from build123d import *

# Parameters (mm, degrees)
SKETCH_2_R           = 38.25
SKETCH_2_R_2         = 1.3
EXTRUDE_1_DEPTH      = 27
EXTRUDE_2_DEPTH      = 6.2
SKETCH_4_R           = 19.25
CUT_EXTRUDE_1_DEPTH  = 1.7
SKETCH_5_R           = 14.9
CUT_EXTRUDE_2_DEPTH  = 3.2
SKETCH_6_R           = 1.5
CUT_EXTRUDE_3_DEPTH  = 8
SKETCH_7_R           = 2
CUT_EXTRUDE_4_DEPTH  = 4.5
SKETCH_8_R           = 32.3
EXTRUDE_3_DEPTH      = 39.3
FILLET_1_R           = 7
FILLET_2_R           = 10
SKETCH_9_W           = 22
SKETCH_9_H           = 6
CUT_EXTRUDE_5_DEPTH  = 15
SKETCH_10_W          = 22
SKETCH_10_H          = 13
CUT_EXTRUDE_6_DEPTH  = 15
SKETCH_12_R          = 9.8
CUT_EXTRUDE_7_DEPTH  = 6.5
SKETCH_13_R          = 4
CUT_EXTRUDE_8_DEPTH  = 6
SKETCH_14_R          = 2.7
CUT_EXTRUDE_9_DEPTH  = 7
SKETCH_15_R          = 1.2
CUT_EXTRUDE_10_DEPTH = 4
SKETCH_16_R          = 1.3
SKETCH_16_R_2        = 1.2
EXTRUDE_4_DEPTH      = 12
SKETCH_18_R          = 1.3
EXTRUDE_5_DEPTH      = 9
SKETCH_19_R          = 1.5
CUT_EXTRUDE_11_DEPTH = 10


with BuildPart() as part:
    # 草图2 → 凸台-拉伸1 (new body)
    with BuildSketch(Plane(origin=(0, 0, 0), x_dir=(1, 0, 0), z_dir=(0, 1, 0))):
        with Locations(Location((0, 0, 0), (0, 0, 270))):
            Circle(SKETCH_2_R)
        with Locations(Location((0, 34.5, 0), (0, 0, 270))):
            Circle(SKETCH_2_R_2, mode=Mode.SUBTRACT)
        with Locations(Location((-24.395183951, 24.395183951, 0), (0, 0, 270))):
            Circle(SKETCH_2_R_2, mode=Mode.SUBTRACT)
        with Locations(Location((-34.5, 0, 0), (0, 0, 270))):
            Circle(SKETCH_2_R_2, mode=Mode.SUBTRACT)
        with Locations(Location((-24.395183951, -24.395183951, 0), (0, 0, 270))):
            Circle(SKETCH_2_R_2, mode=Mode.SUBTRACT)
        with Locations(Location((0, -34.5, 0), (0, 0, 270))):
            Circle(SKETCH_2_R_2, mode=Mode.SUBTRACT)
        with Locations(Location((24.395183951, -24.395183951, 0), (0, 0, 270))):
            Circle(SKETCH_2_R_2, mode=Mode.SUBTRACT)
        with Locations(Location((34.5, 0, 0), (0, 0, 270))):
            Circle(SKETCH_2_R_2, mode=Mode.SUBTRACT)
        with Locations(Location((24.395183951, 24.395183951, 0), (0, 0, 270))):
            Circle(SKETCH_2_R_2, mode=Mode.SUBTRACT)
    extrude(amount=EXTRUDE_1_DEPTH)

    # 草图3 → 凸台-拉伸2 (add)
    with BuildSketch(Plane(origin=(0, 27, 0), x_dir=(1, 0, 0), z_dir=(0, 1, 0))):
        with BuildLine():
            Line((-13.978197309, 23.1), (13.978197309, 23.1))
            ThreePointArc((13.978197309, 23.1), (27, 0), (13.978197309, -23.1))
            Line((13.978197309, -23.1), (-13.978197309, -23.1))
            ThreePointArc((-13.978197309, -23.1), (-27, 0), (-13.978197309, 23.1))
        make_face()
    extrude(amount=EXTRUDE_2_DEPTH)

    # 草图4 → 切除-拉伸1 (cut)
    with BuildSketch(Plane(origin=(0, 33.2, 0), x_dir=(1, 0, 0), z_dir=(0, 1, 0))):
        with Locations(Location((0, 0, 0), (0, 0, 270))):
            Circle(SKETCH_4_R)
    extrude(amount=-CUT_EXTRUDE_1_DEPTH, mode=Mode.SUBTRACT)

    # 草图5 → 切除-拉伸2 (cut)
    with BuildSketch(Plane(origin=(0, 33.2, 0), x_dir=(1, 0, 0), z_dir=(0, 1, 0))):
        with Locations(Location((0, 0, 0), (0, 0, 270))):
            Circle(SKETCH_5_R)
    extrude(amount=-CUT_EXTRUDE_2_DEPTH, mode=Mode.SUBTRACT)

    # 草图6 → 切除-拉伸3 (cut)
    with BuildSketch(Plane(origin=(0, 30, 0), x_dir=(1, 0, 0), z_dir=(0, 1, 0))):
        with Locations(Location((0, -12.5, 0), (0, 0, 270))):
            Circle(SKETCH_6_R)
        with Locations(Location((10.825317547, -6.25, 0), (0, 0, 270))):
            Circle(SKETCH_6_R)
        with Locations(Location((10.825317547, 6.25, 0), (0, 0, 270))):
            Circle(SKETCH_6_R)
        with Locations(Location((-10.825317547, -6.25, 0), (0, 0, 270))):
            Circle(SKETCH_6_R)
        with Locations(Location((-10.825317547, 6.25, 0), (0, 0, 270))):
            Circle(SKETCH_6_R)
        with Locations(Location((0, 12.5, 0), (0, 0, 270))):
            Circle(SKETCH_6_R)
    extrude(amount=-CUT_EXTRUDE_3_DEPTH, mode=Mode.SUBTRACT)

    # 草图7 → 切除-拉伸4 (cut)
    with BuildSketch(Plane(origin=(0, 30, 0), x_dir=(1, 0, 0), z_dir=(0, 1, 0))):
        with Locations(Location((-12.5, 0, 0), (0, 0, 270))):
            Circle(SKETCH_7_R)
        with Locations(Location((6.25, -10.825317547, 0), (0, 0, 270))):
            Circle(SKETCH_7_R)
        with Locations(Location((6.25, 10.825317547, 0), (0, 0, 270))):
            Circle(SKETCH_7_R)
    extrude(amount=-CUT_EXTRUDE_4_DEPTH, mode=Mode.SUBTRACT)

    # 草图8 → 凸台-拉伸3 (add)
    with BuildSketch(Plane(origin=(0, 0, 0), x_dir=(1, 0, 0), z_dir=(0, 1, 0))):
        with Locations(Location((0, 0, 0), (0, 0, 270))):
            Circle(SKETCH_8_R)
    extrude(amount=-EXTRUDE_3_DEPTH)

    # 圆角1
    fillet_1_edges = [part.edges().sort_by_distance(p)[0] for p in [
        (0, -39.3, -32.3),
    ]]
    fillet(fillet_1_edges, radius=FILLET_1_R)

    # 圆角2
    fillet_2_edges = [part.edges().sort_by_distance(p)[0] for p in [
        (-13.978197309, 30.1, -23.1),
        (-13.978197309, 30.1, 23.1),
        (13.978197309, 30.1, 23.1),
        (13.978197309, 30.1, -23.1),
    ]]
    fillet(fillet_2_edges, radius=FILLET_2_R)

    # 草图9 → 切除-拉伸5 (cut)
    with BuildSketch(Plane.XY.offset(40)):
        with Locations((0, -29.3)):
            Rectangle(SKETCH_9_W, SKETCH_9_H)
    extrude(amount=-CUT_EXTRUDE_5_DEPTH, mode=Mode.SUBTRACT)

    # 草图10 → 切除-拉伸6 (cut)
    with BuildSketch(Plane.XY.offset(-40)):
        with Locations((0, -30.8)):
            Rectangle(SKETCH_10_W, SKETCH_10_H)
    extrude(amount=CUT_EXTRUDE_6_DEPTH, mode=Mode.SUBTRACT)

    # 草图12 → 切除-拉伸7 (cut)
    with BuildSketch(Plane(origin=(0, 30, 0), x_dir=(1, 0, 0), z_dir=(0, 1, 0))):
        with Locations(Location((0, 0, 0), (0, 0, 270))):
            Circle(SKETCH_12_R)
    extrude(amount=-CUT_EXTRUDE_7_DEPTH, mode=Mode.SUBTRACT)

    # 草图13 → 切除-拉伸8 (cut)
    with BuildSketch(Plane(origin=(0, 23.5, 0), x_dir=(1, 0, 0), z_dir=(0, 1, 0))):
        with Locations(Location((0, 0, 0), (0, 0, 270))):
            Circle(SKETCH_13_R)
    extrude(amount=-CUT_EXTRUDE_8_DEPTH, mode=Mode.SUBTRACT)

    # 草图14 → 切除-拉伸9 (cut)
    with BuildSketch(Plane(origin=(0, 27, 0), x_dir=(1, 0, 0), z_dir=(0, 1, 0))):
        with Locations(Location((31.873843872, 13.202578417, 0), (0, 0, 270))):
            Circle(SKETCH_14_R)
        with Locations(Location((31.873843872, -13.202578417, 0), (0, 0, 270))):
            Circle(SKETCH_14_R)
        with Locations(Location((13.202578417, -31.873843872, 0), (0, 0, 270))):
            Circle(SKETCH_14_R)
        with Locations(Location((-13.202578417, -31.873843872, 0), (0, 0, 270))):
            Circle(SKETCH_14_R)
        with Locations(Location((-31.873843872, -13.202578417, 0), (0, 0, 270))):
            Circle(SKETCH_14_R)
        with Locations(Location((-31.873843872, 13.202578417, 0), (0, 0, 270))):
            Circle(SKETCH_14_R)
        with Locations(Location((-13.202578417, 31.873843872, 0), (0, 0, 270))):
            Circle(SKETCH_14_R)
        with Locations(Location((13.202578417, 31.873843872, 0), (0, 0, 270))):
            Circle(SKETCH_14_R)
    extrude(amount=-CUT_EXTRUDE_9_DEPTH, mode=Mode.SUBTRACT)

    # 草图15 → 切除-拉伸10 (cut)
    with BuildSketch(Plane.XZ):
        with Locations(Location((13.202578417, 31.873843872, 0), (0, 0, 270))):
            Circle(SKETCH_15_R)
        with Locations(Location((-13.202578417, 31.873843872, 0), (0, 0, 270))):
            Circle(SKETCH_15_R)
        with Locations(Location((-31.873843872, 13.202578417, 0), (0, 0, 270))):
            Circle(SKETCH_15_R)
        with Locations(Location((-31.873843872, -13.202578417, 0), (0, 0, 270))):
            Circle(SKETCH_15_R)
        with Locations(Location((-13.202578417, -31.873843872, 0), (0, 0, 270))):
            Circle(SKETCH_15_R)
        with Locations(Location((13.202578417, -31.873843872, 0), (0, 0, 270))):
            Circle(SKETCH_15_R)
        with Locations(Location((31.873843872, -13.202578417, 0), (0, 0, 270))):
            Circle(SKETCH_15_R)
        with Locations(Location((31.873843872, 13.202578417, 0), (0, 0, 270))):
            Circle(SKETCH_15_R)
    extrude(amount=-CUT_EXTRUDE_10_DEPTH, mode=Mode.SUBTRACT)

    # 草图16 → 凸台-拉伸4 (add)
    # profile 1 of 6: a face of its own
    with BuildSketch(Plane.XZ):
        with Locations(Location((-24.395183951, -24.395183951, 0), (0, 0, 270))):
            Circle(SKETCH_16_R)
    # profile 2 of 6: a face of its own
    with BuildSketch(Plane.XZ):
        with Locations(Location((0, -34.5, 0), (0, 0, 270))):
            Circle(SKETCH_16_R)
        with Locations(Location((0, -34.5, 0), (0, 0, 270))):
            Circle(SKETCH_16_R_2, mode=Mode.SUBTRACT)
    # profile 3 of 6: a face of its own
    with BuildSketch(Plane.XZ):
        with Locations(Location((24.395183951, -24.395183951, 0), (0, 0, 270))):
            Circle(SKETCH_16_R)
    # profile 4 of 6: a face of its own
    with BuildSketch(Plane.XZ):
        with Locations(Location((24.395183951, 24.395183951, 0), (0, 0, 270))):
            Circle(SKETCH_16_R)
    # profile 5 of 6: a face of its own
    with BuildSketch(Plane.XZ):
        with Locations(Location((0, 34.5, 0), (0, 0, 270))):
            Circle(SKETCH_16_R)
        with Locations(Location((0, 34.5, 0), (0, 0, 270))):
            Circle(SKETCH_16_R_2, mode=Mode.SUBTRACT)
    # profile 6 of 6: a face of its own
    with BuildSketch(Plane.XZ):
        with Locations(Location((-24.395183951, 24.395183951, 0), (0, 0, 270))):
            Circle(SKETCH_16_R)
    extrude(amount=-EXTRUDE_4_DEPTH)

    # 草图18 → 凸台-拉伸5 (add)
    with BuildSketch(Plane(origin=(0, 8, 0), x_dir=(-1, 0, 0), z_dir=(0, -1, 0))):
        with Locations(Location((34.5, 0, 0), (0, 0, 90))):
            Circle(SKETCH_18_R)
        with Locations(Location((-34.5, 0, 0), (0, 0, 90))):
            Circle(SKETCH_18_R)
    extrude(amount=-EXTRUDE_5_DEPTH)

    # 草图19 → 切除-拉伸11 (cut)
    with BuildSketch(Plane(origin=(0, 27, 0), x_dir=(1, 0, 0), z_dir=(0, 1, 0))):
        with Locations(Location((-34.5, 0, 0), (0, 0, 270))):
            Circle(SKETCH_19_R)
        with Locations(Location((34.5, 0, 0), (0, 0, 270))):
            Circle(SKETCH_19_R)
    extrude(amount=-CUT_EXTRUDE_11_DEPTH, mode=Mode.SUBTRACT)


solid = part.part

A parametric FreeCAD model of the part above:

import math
import FreeCAD as App
import Part
import Sketcher

V = App.Vector
Q = App.Units.Quantity


def edges_at(feature, points):
    """Names of the edges that pass closest to the given points."""
    edges = feature.Shape.Edges
    near = lambda p: min(range(len(edges)), key=lambda i: edges[i].distToShape(Part.Vertex(*p))[0])
    return sorted({f"Edge{near(p) + 1}" for p in points})


def add_polygon(sketch, points):
    """Adds a closed chain of lines whose ends are joined by coincident constraints."""
    first, n = sketch.GeometryCount, len(points)
    for a, b in zip(points, points[1:] + points[:1]):
        sketch.addGeometry(Part.LineSegment(App.Vector(*a, 0), App.Vector(*b, 0)), False)
    for i in range(n):
        sketch.addConstraint(Sketcher.Constraint("Coincident", first + i, 2, first + (i + 1) % n, 1))

doc = App.newDocument("Part")
params = doc.addObject("Spreadsheet::Sheet", "Params")
for row, (alias, value) in enumerate([
    ("sketch1_diameter", "76.5 mm"),
    ("sketch1_diameter2", "2.6 mm"),
    ("pad1_length", "27 mm"),
    ("sketch2_radius", "27 mm"),
    ("pad2_length", "6.2 mm"),
    ("sketch3_diameter", "38.5 mm"),
    ("pocket1_length", "1.7 mm"),
    ("sketch4_diameter", "29.8 mm"),
    ("pocket2_length", "3.2 mm"),
    ("sketch5_diameter", "3 mm"),
    ("pocket3_length", "8 mm"),
    ("sketch6_diameter", "4 mm"),
    ("pocket4_length", "4.5 mm"),
    ("sketch7_diameter", "64.6 mm"),
    ("pad3_length", "39.3 mm"),
    ("fillet_radius", "7 mm"),
    ("fillet2_radius", "10 mm"),
    ("sketch8_width", "22 mm"),
    ("sketch8_height", "6 mm"),
    ("pocket5_length", "15 mm"),
    ("sketch9_width", "22 mm"),
    ("sketch9_height", "13 mm"),
    ("pocket6_length", "15 mm"),
    ("sketch10_diameter", "19.6 mm"),
    ("pocket7_length", "6.5 mm"),
    ("sketch11_diameter", "8 mm"),
    ("pocket8_length", "6 mm"),
    ("sketch12_diameter", "5.4 mm"),
    ("pocket9_length", "7 mm"),
    ("sketch13_diameter", "2.4 mm"),
    ("pocket10_length", "4 mm"),
    ("sketch14_diameter", "2.6 mm"),
    ("sketch14_diameter2", "2.4 mm"),
    ("pad4_length", "12 mm"),
    ("sketch15_diameter", "2.6 mm"),
    ("pad5_length", "9 mm"),
    ("sketch16_diameter", "3 mm"),
    ("pocket11_length", "10 mm"),
], start=1):
    params.set(f"A{row}", alias)
    params.set(f"B{row}", "=" + value)
    params.setAlias(f"B{row}", alias)

body = doc.addObject("PartDesign::Body", "Body")

# Sketch on XZ plane
sketch1 = doc.addObject("Sketcher::SketchObject", "Sketch")
body.addObject(sketch1)
sketch1.AttachmentSupport = (doc.XZ_Plane, [""])
sketch1.MapMode = "FlatFace"
sketch1.addGeometry([
    Part.Circle(V(0, 0, 0), V(0, 0, 1), 38.2),  # 0
    Part.Circle(V(-24.4, -24.4, 0), V(0, 0, 1), 1.3),  # 1
    Part.Circle(V(0, -34.5, 0), V(0, 0, 1), 1.3),  # 2
    Part.Circle(V(-34.5, 0, 0), V(0, 0, 1), 1.3),  # 3
    Part.Circle(V(-24.4, 24.4, 0), V(0, 0, 1), 1.3),  # 4
    Part.Circle(V(24.4, -24.4, 0), V(0, 0, 1), 1.3),  # 5
    Part.Circle(V(34.5, 0, 0), V(0, 0, 1), 1.3),  # 6
    Part.Circle(V(0, 34.5, 0), V(0, 0, 1), 1.3),  # 7
    Part.Circle(V(24.4, 24.4, 0), V(0, 0, 1), 1.3),  # 8
], False)
sketch1.addConstraint([
    Sketcher.Constraint("Coincident", 0, 3, -1, 1),
    Sketcher.Constraint("Equal", 1, 2),
    Sketcher.Constraint("Equal", 2, 3),
    Sketcher.Constraint("Equal", 3, 4),
    Sketcher.Constraint("Equal", 4, 5),
    Sketcher.Constraint("Equal", 5, 6),
    Sketcher.Constraint("Equal", 6, 7),
    Sketcher.Constraint("Equal", 7, 8),
    Sketcher.Constraint("Symmetric", 4, 3, 5, 3, -1, 1),
    Sketcher.Constraint("Symmetric", 3, 3, 6, 3, -1, 1),
    Sketcher.Constraint("Symmetric", 2, 3, 7, 3, -1, 1),
    Sketcher.Constraint("Symmetric", 1, 3, 8, 3, -1, 1),
    Sketcher.Constraint("Symmetric", 1, 3, 5, 3, -2),
    Sketcher.Constraint("PointOnObject", 2, 3, -2),
    Sketcher.Constraint("PointOnObject", 3, 3, -1),
    Sketcher.Constraint("Diameter", 0, Q("76.5 mm")),
    Sketcher.Constraint("Diameter", 1, Q("2.6 mm")),
    Sketcher.Constraint("DistanceY", 2, 3, -1, 1, Q("34.5 mm")),
    Sketcher.Constraint("DistanceX", 3, 3, -1, 1, Q("34.5 mm")),
    Sketcher.Constraint("DistanceX", 1, 3, -1, 1, Q("24.395184 mm")),
    Sketcher.Constraint("DistanceY", 1, 3, -1, 1, Q("24.395184 mm")),
])
sketch1.setExpression("Constraints[15]", "Params.sketch1_diameter")
sketch1.setExpression("Constraints[16]", "Params.sketch1_diameter2")
pad1 = doc.addObject("PartDesign::Pad", "Pad")
body.addObject(pad1)
pad1.Profile = sketch1
pad1.setExpression("Length", "Params.pad1_length")
pad1.Reversed = True

# Sketch on XZ plane
sketch2 = doc.addObject("Sketcher::SketchObject", "Sketch001")
body.addObject(sketch2)
sketch2.AttachmentSupport = (doc.XZ_Plane, [""])
sketch2.MapMode = "FlatFace"
sketch2.AttachmentOffset = App.Placement(V(0, 0, -27), App.Rotation())
sketch2.addGeometry([
    Part.LineSegment(V(14, -23, 0), V(-14, -23, 0)),
    Part.ArcOfCircle(Part.Circle(V(0, 0, 0), V(0, 0, 1), 27), math.radians(121), math.radians(239)),
    Part.LineSegment(V(-14, 23, 0), V(14, 23, 0)),
    Part.ArcOfCircle(Part.Circle(V(0, 0, 0), V(0, 0, 1), 27), math.radians(-59), math.radians(59)),
], False)
sketch2.addConstraint([
    Sketcher.Constraint("Coincident", 0, 2, 1, 2),
    Sketcher.Constraint("Coincident", 1, 1, 2, 1),
    Sketcher.Constraint("Coincident", 2, 2, 3, 2),
    Sketcher.Constraint("Coincident", 3, 1, 0, 1),
    Sketcher.Constraint("Horizontal", 0),
    Sketcher.Constraint("Horizontal", 2),
    Sketcher.Constraint("Coincident", 1, 3, -1, 1),
    Sketcher.Constraint("Coincident", 3, 3, -1, 1),
    Sketcher.Constraint("Equal", 1, 3),
    Sketcher.Constraint("Vertical", 0, 2, 1, 1),
    Sketcher.Constraint("Radius", 1, Q("27 mm")),
    Sketcher.Constraint("DistanceY", 0, 2, -1, 1, Q("23.1 mm")),
])
sketch2.setExpression("Constraints[10]", "Params.sketch2_radius")
pad2 = doc.addObject("PartDesign::Pad", "Pad001")
body.addObject(pad2)
pad2.Profile = sketch2
pad2.setExpression("Length", "Params.pad2_length")
pad2.Reversed = True

# Sketch on XZ plane
sketch3 = doc.addObject("Sketcher::SketchObject", "Sketch002")
body.addObject(sketch3)
sketch3.AttachmentSupport = (doc.XZ_Plane, [""])
sketch3.MapMode = "FlatFace"
sketch3.AttachmentOffset = App.Placement(V(0, 0, -33.2), App.Rotation())
sketch3.addGeometry(Part.Circle(V(0, 0, 0), V(0, 0, 1), 19), False)
sketch3.addConstraint([
    Sketcher.Constraint("Coincident", 0, 3, -1, 1),
    Sketcher.Constraint("Diameter", 0, Q("38.5 mm")),
])
sketch3.setExpression("Constraints[1]", "Params.sketch3_diameter")
pocket1 = doc.addObject("PartDesign::Pocket", "Pocket")
body.addObject(pocket1)
pocket1.Profile = sketch3
pocket1.setExpression("Length", "Params.pocket1_length")
pocket1.Reversed = True

# Sketch on XZ plane
sketch4 = doc.addObject("Sketcher::SketchObject", "Sketch003")
body.addObject(sketch4)
sketch4.AttachmentSupport = (doc.XZ_Plane, [""])
sketch4.MapMode = "FlatFace"
sketch4.AttachmentOffset = App.Placement(V(0, 0, -33.2), App.Rotation())
sketch4.addGeometry(Part.Circle(V(0, 0, 0), V(0, 0, 1), 15), False)
sketch4.addConstraint([
    Sketcher.Constraint("Coincident", 0, 3, -1, 1),
    Sketcher.Constraint("Diameter", 0, Q("29.8 mm")),
])
sketch4.setExpression("Constraints[1]", "Params.sketch4_diameter")
pocket2 = doc.addObject("PartDesign::Pocket", "Pocket001")
body.addObject(pocket2)
pocket2.Profile = sketch4
pocket2.setExpression("Length", "Params.pocket2_length")
pocket2.Reversed = True

# Sketch on XZ plane
sketch5 = doc.addObject("Sketcher::SketchObject", "Sketch004")
body.addObject(sketch5)
sketch5.AttachmentSupport = (doc.XZ_Plane, [""])
sketch5.MapMode = "FlatFace"
sketch5.AttachmentOffset = App.Placement(V(0, 0, -30), App.Rotation())
sketch5.addGeometry([
    Part.Circle(V(0, 12.5, 0), V(0, 0, 1), 1.5),  # 0
    Part.Circle(V(10.8, 6.2, 0), V(0, 0, 1), 1.5),  # 1
    Part.Circle(V(10.8, -6.2, 0), V(0, 0, 1), 1.5),  # 2
    Part.Circle(V(-10.8, 6.2, 0), V(0, 0, 1), 1.5),  # 3
    Part.Circle(V(-10.8, -6.2, 0), V(0, 0, 1), 1.5),  # 4
    Part.Circle(V(0, -12.5, 0), V(0, 0, 1), 1.5),  # 5
], False)
sketch5.addConstraint([
    Sketcher.Constraint("Equal", 0, 1),
    Sketcher.Constraint("Equal", 1, 2),
    Sketcher.Constraint("Equal", 2, 3),
    Sketcher.Constraint("Equal", 3, 4),
    Sketcher.Constraint("Equal", 4, 5),
    Sketcher.Constraint("Symmetric", 2, 3, 3, 3, -1, 1),
    Sketcher.Constraint("Symmetric", 1, 3, 4, 3, -1, 1),
    Sketcher.Constraint("Symmetric", 0, 3, 5, 3, -1, 1),
    Sketcher.Constraint("Symmetric", 1, 3, 3, 3, -2),
    Sketcher.Constraint("PointOnObject", 0, 3, -2),
    Sketcher.Constraint("Diameter", 0, Q("3 mm")),
    Sketcher.Constraint("DistanceY", 5, 3, 0, 3, Q("25 mm")),
    Sketcher.Constraint("DistanceY", 2, 3, 1, 3, Q("12.5 mm")),
    Sketcher.Constraint("DistanceX", -1, 1, 1, 3, Q("10.825318 mm")),
])
sketch5.setExpression("Constraints[10]", "Params.sketch5_diameter")
pocket3 = doc.addObject("PartDesign::Pocket", "Pocket002")
body.addObject(pocket3)
pocket3.Profile = sketch5
pocket3.setExpression("Length", "Params.pocket3_length")
pocket3.Reversed = True

# Sketch on XZ plane
sketch6 = doc.addObject("Sketcher::SketchObject", "Sketch005")
body.addObject(sketch6)
sketch6.AttachmentSupport = (doc.XZ_Plane, [""])
sketch6.MapMode = "FlatFace"
sketch6.AttachmentOffset = App.Placement(V(0, 0, -30), App.Rotation())
sketch6.addGeometry([
    Part.Circle(V(-12.5, 0, 0), V(0, 0, 1), 2),
    Part.Circle(V(6.2, 10.8, 0), V(0, 0, 1), 2),
    Part.Circle(V(6.2, -10.8, 0), V(0, 0, 1), 2),
], False)
sketch6.addConstraint([
    Sketcher.Constraint("Equal", 0, 1),
    Sketcher.Constraint("Equal", 1, 2),
    Sketcher.Constraint("Symmetric", 1, 3, 2, 3, -1),
    Sketcher.Constraint("PointOnObject", 0, 3, -1),
    Sketcher.Constraint("Diameter", 0, Q("4 mm")),
    Sketcher.Constraint("DistanceX", 0, 3, -1, 1, Q("12.5 mm")),
    Sketcher.Constraint("DistanceX", -1, 1, 1, 3, Q("6.25 mm")),
    Sketcher.Constraint("DistanceY", -1, 1, 1, 3, Q("10.825318 mm")),
])
sketch6.setExpression("Constraints[4]", "Params.sketch6_diameter")
pocket4 = doc.addObject("PartDesign::Pocket", "Pocket003")
body.addObject(pocket4)
pocket4.Profile = sketch6
pocket4.setExpression("Length", "Params.pocket4_length")
pocket4.Reversed = True

# Sketch on XZ plane
sketch7 = doc.addObject("Sketcher::SketchObject", "Sketch006")
body.addObject(sketch7)
sketch7.AttachmentSupport = (doc.XZ_Plane, [""])
sketch7.MapMode = "FlatFace"
sketch7.addGeometry(Part.Circle(V(0, 0, 0), V(0, 0, 1), 32), False)
sketch7.addConstraint([
    Sketcher.Constraint("Coincident", 0, 3, -1, 1),
    Sketcher.Constraint("Diameter", 0, Q("64.6 mm")),
])
sketch7.setExpression("Constraints[1]", "Params.sketch7_diameter")
pad3 = doc.addObject("PartDesign::Pad", "Pad002")
body.addObject(pad3)
pad3.Profile = sketch7
pad3.setExpression("Length", "Params.pad3_length")
doc.recompute()

fillet = doc.addObject("PartDesign::Fillet", "Fillet")
body.addObject(fillet)
fillet.Base = (pad3, edges_at(pad3, [(0, -39.3, -32.3)]))
fillet.setExpression("Radius", "Params.fillet_radius")
doc.recompute()

fillet2 = doc.addObject("PartDesign::Fillet", "Fillet001")
body.addObject(fillet2)
fillet2.Base = (fillet, edges_at(fillet, [
    (-13.978, 30.1, -23.1),
    (-13.978, 30.1, 23.1),
    (13.978, 30.1, 23.1),
    (13.978, 30.1, -23.1),
]))
fillet2.setExpression("Radius", "Params.fillet2_radius")

# Sketch on XY plane
sketch8 = doc.addObject("Sketcher::SketchObject", "Sketch007")
body.addObject(sketch8)
sketch8.AttachmentSupport = (doc.XY_Plane, [""])
sketch8.MapMode = "FlatFace"
sketch8.AttachmentOffset = App.Placement(V(0, 0, 40), App.Rotation())
add_polygon(sketch8, [(-11, -26), (-11, -32), (11, -32), (11, -26)])  # lines 0-3
sketch8.addConstraint([
    Sketcher.Constraint("Vertical", 0),
    Sketcher.Constraint("Horizontal", 1),
    Sketcher.Constraint("Vertical", 2),
    Sketcher.Constraint("Horizontal", 3),
    Sketcher.Constraint("DistanceX", 1, 1, 1, 2, Q("22 mm")),
    Sketcher.Constraint("DistanceY", 0, 2, 0, 1, Q("6 mm")),
    Sketcher.Constraint("DistanceX", 0, 2, -1, 1, Q("11 mm")),
    Sketcher.Constraint("DistanceY", 0, 2, -1, 1, Q("32.3 mm")),
])
sketch8.setExpression("Constraints[8]", "Params.sketch8_width")
sketch8.setExpression("Constraints[9]", "Params.sketch8_height")
pocket5 = doc.addObject("PartDesign::Pocket", "Pocket004")
body.addObject(pocket5)
pocket5.Profile = sketch8
pocket5.setExpression("Length", "Params.pocket5_length")

# Sketch on XY plane
sketch9 = doc.addObject("Sketcher::SketchObject", "Sketch008")
body.addObject(sketch9)
sketch9.AttachmentSupport = (doc.XY_Plane, [""])
sketch9.MapMode = "FlatFace"
sketch9.AttachmentOffset = App.Placement(V(0, 0, -40), App.Rotation())
add_polygon(sketch9, [(-11, -24), (-11, -37), (11, -37), (11, -24)])  # lines 0-3
sketch9.addConstraint([
    Sketcher.Constraint("Vertical", 0),
    Sketcher.Constraint("Horizontal", 1),
    Sketcher.Constraint("Vertical", 2),
    Sketcher.Constraint("Horizontal", 3),
    Sketcher.Constraint("DistanceX", 1, 1, 1, 2, Q("22 mm")),
    Sketcher.Constraint("DistanceY", 0, 2, 0, 1, Q("13 mm")),
    Sketcher.Constraint("DistanceX", 0, 2, -1, 1, Q("11 mm")),
    Sketcher.Constraint("DistanceY", 0, 2, -1, 1, Q("37.3 mm")),
])
sketch9.setExpression("Constraints[8]", "Params.sketch9_width")
sketch9.setExpression("Constraints[9]", "Params.sketch9_height")
pocket6 = doc.addObject("PartDesign::Pocket", "Pocket005")
body.addObject(pocket6)
pocket6.Profile = sketch9
pocket6.setExpression("Length", "Params.pocket6_length")
pocket6.Reversed = True

# Sketch on XZ plane
sketch10 = doc.addObject("Sketcher::SketchObject", "Sketch009")
body.addObject(sketch10)
sketch10.AttachmentSupport = (doc.XZ_Plane, [""])
sketch10.MapMode = "FlatFace"
sketch10.AttachmentOffset = App.Placement(V(0, 0, -30), App.Rotation())
sketch10.addGeometry(Part.Circle(V(0, 0, 0), V(0, 0, 1), 10), False)
sketch10.addConstraint([
    Sketcher.Constraint("Coincident", 0, 3, -1, 1),
    Sketcher.Constraint("Diameter", 0, Q("19.6 mm")),
])
sketch10.setExpression("Constraints[1]", "Params.sketch10_diameter")
pocket7 = doc.addObject("PartDesign::Pocket", "Pocket006")
body.addObject(pocket7)
pocket7.Profile = sketch10
pocket7.setExpression("Length", "Params.pocket7_length")
pocket7.Reversed = True

# Sketch on XZ plane
sketch11 = doc.addObject("Sketcher::SketchObject", "Sketch010")
body.addObject(sketch11)
sketch11.AttachmentSupport = (doc.XZ_Plane, [""])
sketch11.MapMode = "FlatFace"
sketch11.AttachmentOffset = App.Placement(V(0, 0, -23.5), App.Rotation())
sketch11.addGeometry(Part.Circle(V(0, 0, 0), V(0, 0, 1), 4), False)
sketch11.addConstraint([
    Sketcher.Constraint("Coincident", 0, 3, -1, 1),
    Sketcher.Constraint("Diameter", 0, Q("8 mm")),
])
sketch11.setExpression("Constraints[1]", "Params.sketch11_diameter")
pocket8 = doc.addObject("PartDesign::Pocket", "Pocket007")
body.addObject(pocket8)
pocket8.Profile = sketch11
pocket8.setExpression("Length", "Params.pocket8_length")
pocket8.Reversed = True

# Sketch on XZ plane
sketch12 = doc.addObject("Sketcher::SketchObject", "Sketch011")
body.addObject(sketch12)
sketch12.AttachmentSupport = (doc.XZ_Plane, [""])
sketch12.MapMode = "FlatFace"
sketch12.AttachmentOffset = App.Placement(V(0, 0, -27), App.Rotation())
sketch12.addGeometry([
    Part.Circle(V(31.9, -13.2, 0), V(0, 0, 1), 2.7),  # 0
    Part.Circle(V(31.9, 13.2, 0), V(0, 0, 1), 2.7),  # 1
    Part.Circle(V(13.2, 31.9, 0), V(0, 0, 1), 2.7),  # 2
    Part.Circle(V(-13.2, 31.9, 0), V(0, 0, 1), 2.7),  # 3
    Part.Circle(V(-31.9, 13.2, 0), V(0, 0, 1), 2.7),  # 4
    Part.Circle(V(-31.9, -13.2, 0), V(0, 0, 1), 2.7),  # 5
    Part.Circle(V(-13.2, -31.9, 0), V(0, 0, 1), 2.7),  # 6
    Part.Circle(V(13.2, -31.9, 0), V(0, 0, 1), 2.7),  # 7
], False)
sketch12.addConstraint([
    Sketcher.Constraint("Equal", 0, 1),
    Sketcher.Constraint("Equal", 1, 2),
    Sketcher.Constraint("Equal", 2, 3),
    Sketcher.Constraint("Equal", 3, 4),
    Sketcher.Constraint("Equal", 4, 5),
    Sketcher.Constraint("Equal", 5, 6),
    Sketcher.Constraint("Equal", 6, 7),
    Sketcher.Constraint("Symmetric", 0, 3, 4, 3, -1, 1),
    Sketcher.Constraint("Symmetric", 1, 3, 5, 3, -1, 1),
    Sketcher.Constraint("Symmetric", 2, 3, 6, 3, -1, 1),
    Sketcher.Constraint("Symmetric", 3, 3, 7, 3, -1, 1),
    Sketcher.Constraint("Symmetric", 2, 3, 3, 3, -2),
    Sketcher.Constraint("Symmetric", 1, 3, 4, 3, -2),
    Sketcher.Constraint("Diameter", 0, Q("5.4 mm")),
    Sketcher.Constraint("DistanceY", 0, 3, -1, 1, Q("13.202578 mm")),
    Sketcher.Constraint("DistanceX", -1, 1, 2, 3, Q("13.202578 mm")),
    Sketcher.Constraint("DistanceX", -1, 1, 0, 3, Q("31.873844 mm")),
    Sketcher.Constraint("DistanceY", -1, 1, 2, 3, Q("31.873844 mm")),
])
sketch12.setExpression("Constraints[13]", "Params.sketch12_diameter")
pocket9 = doc.addObject("PartDesign::Pocket", "Pocket008")
body.addObject(pocket9)
pocket9.Profile = sketch12
pocket9.setExpression("Length", "Params.pocket9_length")
pocket9.Reversed = True

# Sketch on XZ plane
sketch13 = doc.addObject("Sketcher::SketchObject", "Sketch012")
body.addObject(sketch13)
sketch13.AttachmentSupport = (doc.XZ_Plane, [""])
sketch13.MapMode = "FlatFace"
sketch13.addGeometry([
    Part.Circle(V(13.2, 31.9, 0), V(0, 0, 1), 1.2),  # 0
    Part.Circle(V(-13.2, 31.9, 0), V(0, 0, 1), 1.2),  # 1
    Part.Circle(V(-31.9, 13.2, 0), V(0, 0, 1), 1.2),  # 2
    Part.Circle(V(-31.9, -13.2, 0), V(0, 0, 1), 1.2),  # 3
    Part.Circle(V(-13.2, -31.9, 0), V(0, 0, 1), 1.2),  # 4
    Part.Circle(V(13.2, -31.9, 0), V(0, 0, 1), 1.2),  # 5
    Part.Circle(V(31.9, -13.2, 0), V(0, 0, 1), 1.2),  # 6
    Part.Circle(V(31.9, 13.2, 0), V(0, 0, 1), 1.2),  # 7
], False)
sketch13.addConstraint([
    Sketcher.Constraint("Equal", 0, 1),
    Sketcher.Constraint("Equal", 1, 2),
    Sketcher.Constraint("Equal", 2, 3),
    Sketcher.Constraint("Equal", 3, 4),
    Sketcher.Constraint("Equal", 4, 5),
    Sketcher.Constraint("Equal", 5, 6),
    Sketcher.Constraint("Equal", 6, 7),
    Sketcher.Constraint("Symmetric", 0, 3, 4, 3, -1, 1),
    Sketcher.Constraint("Symmetric", 1, 3, 5, 3, -1, 1),
    Sketcher.Constraint("Symmetric", 2, 3, 6, 3, -1, 1),
    Sketcher.Constraint("Symmetric", 3, 3, 7, 3, -1, 1),
    Sketcher.Constraint("Symmetric", 0, 3, 1, 3, -2),
    Sketcher.Constraint("Symmetric", 3, 3, 6, 3, -2),
    Sketcher.Constraint("Diameter", 0, Q("2.4 mm")),
    Sketcher.Constraint("DistanceX", -1, 1, 0, 3, Q("13.202578 mm")),
    Sketcher.Constraint("DistanceY", -1, 1, 2, 3, Q("13.202578 mm")),
    Sketcher.Constraint("DistanceY", -1, 1, 0, 3, Q("31.873844 mm")),
    Sketcher.Constraint("DistanceX", 2, 3, -1, 1, Q("31.873844 mm")),
])
sketch13.setExpression("Constraints[13]", "Params.sketch13_diameter")
pocket10 = doc.addObject("PartDesign::Pocket", "Pocket009")
body.addObject(pocket10)
pocket10.Profile = sketch13
pocket10.setExpression("Length", "Params.pocket10_length")

# Sketch on XZ plane
sketch14 = doc.addObject("Sketcher::SketchObject", "Sketch013")
body.addObject(sketch14)
sketch14.AttachmentSupport = (doc.XZ_Plane, [""])
sketch14.MapMode = "FlatFace"
sketch14.addGeometry([
    Part.Circle(V(-24.4, -24.4, 0), V(0, 0, 1), 1.3),  # 0
    Part.Circle(V(0, -34.5, 0), V(0, 0, 1), 1.3),  # 1
    Part.Circle(V(0, -34.5, 0), V(0, 0, 1), 1.2),  # 2
    Part.Circle(V(24.4, -24.4, 0), V(0, 0, 1), 1.3),  # 3
    Part.Circle(V(24.4, 24.4, 0), V(0, 0, 1), 1.3),  # 4
    Part.Circle(V(0, 34.5, 0), V(0, 0, 1), 1.3),  # 5
    Part.Circle(V(0, 34.5, 0), V(0, 0, 1), 1.2),  # 6
    Part.Circle(V(-24.4, 24.4, 0), V(0, 0, 1), 1.3),  # 7
], False)
sketch14.addConstraint([
    Sketcher.Constraint("Coincident", 2, 3, 1, 3),
    Sketcher.Constraint("Coincident", 6, 3, 5, 3),
    Sketcher.Constraint("Equal", 0, 1),
    Sketcher.Constraint("Equal", 1, 3),
    Sketcher.Constraint("Equal", 3, 4),
    Sketcher.Constraint("Equal", 4, 5),
    Sketcher.Constraint("Equal", 2, 6),
    Sketcher.Constraint("Equal", 5, 7),
    Sketcher.Constraint("Symmetric", 0, 3, 4, 3, -1, 1),
    Sketcher.Constraint("Symmetric", 1, 3, 5, 3, -1, 1),
    Sketcher.Constraint("Symmetric", 3, 3, 7, 3, -1, 1),
    Sketcher.Constraint("Symmetric", 0, 3, 3, 3, -2),
    Sketcher.Constraint("PointOnObject", 1, 3, -2),
    Sketcher.Constraint("Diameter", 0, Q("2.6 mm")),
    Sketcher.Constraint("Diameter", 2, Q("2.4 mm")),
    Sketcher.Constraint("DistanceY", 1, 3, 5, 3, Q("69 mm")),
    Sketcher.Constraint("DistanceX", 0, 3, -1, 1, Q("24.395184 mm")),
    Sketcher.Constraint("DistanceY", 0, 3, -1, 1, Q("24.395184 mm")),
])
sketch14.setExpression("Constraints[13]", "Params.sketch14_diameter")
sketch14.setExpression("Constraints[14]", "Params.sketch14_diameter2")
pad4 = doc.addObject("PartDesign::Pad", "Pad003")
body.addObject(pad4)
pad4.Profile = sketch14
pad4.setExpression("Length", "Params.pad4_length")
pad4.Reversed = True

# Sketch on XZ plane
sketch15 = doc.addObject("Sketcher::SketchObject", "Sketch014")
body.addObject(sketch15)
sketch15.AttachmentSupport = (doc.XZ_Plane, [""])
sketch15.MapMode = "FlatFace"
sketch15.AttachmentOffset = App.Placement(V(0, 0, -8), App.Rotation())
sketch15.addGeometry([
    Part.Circle(V(-34.5, 0, 0), V(0, 0, 1), 1.3),
    Part.Circle(V(34.5, 0, 0), V(0, 0, 1), 1.3),
], False)
sketch15.addConstraint([
    Sketcher.Constraint("Equal", 0, 1),
    Sketcher.Constraint("Symmetric", 0, 3, 1, 3, -1, 1),
    Sketcher.Constraint("PointOnObject", 0, 3, -1),
    Sketcher.Constraint("Diameter", 0, Q("2.6 mm")),
    Sketcher.Constraint("DistanceX", 0, 3, 1, 3, Q("69 mm")),
])
sketch15.setExpression("Constraints[3]", "Params.sketch15_diameter")
pad5 = doc.addObject("PartDesign::Pad", "Pad004")
body.addObject(pad5)
pad5.Profile = sketch15
pad5.setExpression("Length", "Params.pad5_length")
pad5.Reversed = True

# Sketch on XZ plane
sketch16 = doc.addObject("Sketcher::SketchObject", "Sketch015")
body.addObject(sketch16)
sketch16.AttachmentSupport = (doc.XZ_Plane, [""])
sketch16.MapMode = "FlatFace"
sketch16.AttachmentOffset = App.Placement(V(0, 0, -27), App.Rotation())
sketch16.addGeometry([
    Part.Circle(V(-34.5, 0, 0), V(0, 0, 1), 1.5),
    Part.Circle(V(34.5, 0, 0), V(0, 0, 1), 1.5),
], False)
sketch16.addConstraint([
    Sketcher.Constraint("Equal", 0, 1),
    Sketcher.Constraint("Symmetric", 0, 3, 1, 3, -1, 1),
    Sketcher.Constraint("PointOnObject", 0, 3, -1),
    Sketcher.Constraint("Diameter", 0, Q("3 mm")),
    Sketcher.Constraint("DistanceX", 0, 3, 1, 3, Q("69 mm")),
])
sketch16.setExpression("Constraints[3]", "Params.sketch16_diameter")
pocket11 = doc.addObject("PartDesign::Pocket", "Pocket010")
body.addObject(pocket11)
pocket11.Profile = sketch16
pocket11.setExpression("Length", "Params.pocket11_length")
pocket11.Reversed = True

doc.recompute()
